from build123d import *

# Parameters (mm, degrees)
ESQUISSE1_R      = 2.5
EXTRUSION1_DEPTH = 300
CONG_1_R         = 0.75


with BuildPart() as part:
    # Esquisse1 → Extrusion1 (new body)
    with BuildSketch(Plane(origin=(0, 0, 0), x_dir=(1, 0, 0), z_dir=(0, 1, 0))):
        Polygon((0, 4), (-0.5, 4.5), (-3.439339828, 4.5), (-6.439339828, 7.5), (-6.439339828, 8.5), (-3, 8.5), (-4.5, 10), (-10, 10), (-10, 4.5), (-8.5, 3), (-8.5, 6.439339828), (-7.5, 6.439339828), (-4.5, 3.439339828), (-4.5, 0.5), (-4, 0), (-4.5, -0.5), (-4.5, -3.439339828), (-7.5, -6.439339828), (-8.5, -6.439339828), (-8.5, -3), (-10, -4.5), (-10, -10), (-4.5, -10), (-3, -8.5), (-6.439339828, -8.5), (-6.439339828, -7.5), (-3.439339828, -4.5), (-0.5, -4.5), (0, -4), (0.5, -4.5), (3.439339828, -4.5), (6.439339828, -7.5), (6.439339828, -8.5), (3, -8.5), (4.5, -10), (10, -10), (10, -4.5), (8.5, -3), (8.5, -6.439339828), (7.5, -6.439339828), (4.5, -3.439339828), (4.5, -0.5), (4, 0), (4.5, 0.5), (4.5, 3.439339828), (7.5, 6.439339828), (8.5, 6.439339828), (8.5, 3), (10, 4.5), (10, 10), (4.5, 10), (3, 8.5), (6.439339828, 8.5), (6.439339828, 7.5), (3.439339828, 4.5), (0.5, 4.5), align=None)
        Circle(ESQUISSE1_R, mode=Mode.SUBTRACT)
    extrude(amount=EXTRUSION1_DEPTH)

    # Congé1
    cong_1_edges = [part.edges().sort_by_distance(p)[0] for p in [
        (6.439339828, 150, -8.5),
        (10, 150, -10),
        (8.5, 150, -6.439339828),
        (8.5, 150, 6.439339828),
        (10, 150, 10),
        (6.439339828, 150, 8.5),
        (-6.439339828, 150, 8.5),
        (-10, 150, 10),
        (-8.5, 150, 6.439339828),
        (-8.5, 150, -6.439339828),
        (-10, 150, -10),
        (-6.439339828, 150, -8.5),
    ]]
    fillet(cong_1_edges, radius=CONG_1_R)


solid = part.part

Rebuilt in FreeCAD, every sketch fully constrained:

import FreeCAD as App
import Part
import Sketcher


def edges_at(feature, points):
    """Names of the edges that pass closest to the given points."""
    edges = feature.Shape.Edges
    near = lambda p: min(range(len(edges)), key=lambda i: edges[i].distToShape(Part.Vertex(*p))[0])
    return sorted({f"Edge{near(p) + 1}" for p in points})


def add_polygon(sketch, points):
    """Adds a closed chain of lines whose ends are joined by coincident constraints."""
    first, n = sketch.GeometryCount, len(points)
    for a, b in zip(points, points[1:] + points[:1]):
        sketch.addGeometry(Part.LineSegment(App.Vector(*a, 0), App.Vector(*b, 0)), False)
    for i in range(n):
        sketch.addConstraint(Sketcher.Constraint("Coincident", first + i, 2, first + (i + 1) % n, 1))

doc = App.newDocument("Part")
params = doc.addObject("Spreadsheet::Sheet", "Params")
for row, (alias, value) in enumerate([
    ("sketch1_diameter", "5 mm"),
    ("sketch1_width", "1 mm"),
    ("sketch1_width2", "5.5 mm"),
    ("pad1_length", "300 mm"),
    ("fillet_radius", "0.75 mm"),
], start=1):
    params.set(f"A{row}", alias)
    params.set(f"B{row}", "=" + value)
    params.setAlias(f"B{row}", alias)

body = doc.addObject("PartDesign::Body", "Body")

# Sketch on XZ plane
sketch1 = body.newObject("Sketcher::SketchObject", "Sketch")
sketch1.AttachmentSupport = (doc.getObject("XZ_Plane"), [""])
sketch1.MapMode = "FlatFace"
add_polygon(sketch1, [(0, -4), (-0.5, -4.5), (-3.43934, -4.5), (-6.43934, -7.5), (-6.43934, -8.5), (-3, -8.5), (-4.5, -10), (-10, -10), (-10, -4.5), (-8.5, -3), (-8.5, -6.43934), (-7.5, -6.43934), (-4.5, -3.43934), (-4.5, -0.5), (-4, 0), (-4.5, 0.5), (-4.5, 3.43934), (-7.5, 6.43934), (-8.5, 6.43934), (-8.5, 3), (-10, 4.5), (-10, 10), (-4.5, 10), (-3, 8.5), (-6.43934, 8.5), (-6.43934, 7.5), (-3.43934, 4.5), (-0.5, 4.5), (0, 4), (0.5, 4.5), (3.43934, 4.5), (6.43934, 7.5), (6.43934, 8.5), (3, 8.5), (4.5, 10), (10, 10), (10, 4.5), (8.5, 3), (8.5, 6.43934), (7.5, 6.43934), (4.5, 3.43934), (4.5, 0.5), (4, 0), (4.5, -0.5), (4.5, -3.43934), (7.5, -6.43934), (8.5, -6.43934), (8.5, -3), (10, -4.5), (10, -10), (4.5, -10), (3, -8.5), (6.43934, -8.5), (6.43934, -7.5), (3.43934, -4.5), (0.5, -4.5)])  # lines 0-55
sketch1.addGeometry(Part.Circle(App.Vector(0, 0, 0), App.Vector(0, 0, 1), 2.5), False)  # 56
sketch1.addConstraint(Sketcher.Constraint("Horizontal", 1))
sketch1.addConstraint(Sketcher.Constraint("Vertical", 3))
sketch1.addConstraint(Sketcher.Constraint("Horizontal", 4))
sketch1.addConstraint(Sketcher.Constraint("Horizontal", 6))
sketch1.addConstraint(Sketcher.Constraint("Vertical", 7))
sketch1.addConstraint(Sketcher.Constraint("Vertical", 9))
sketch1.addConstraint(Sketcher.Constraint("Horizontal", 10))
sketch1.addConstraint(Sketcher.Constraint("Vertical", 12))
sketch1.addConstraint(Sketcher.Constraint("Vertical", 15))
sketch1.addConstraint(Sketcher.Constraint("Horizontal", 17))
sketch1.addConstraint(Sketcher.Constraint("Vertical", 18))
sketch1.addConstraint(Sketcher.Constraint("Vertical", 20))
sketch1.addConstraint(Sketcher.Constraint("Horizontal", 21))
sketch1.addConstraint(Sketcher.Constraint("Horizontal", 23))
sketch1.addConstraint(Sketcher.Constraint("Vertical", 24))
sketch1.addConstraint(Sketcher.Constraint("Horizontal", 26))
sketch1.addConstraint(Sketcher.Constraint("Horizontal", 29))
sketch1.addConstraint(Sketcher.Constraint("Vertical", 31))
sketch1.addConstraint(Sketcher.Constraint("Horizontal", 32))
sketch1.addConstraint(Sketcher.Constraint("Horizontal", 34))
sketch1.addConstraint(Sketcher.Constraint("Vertical", 35))
sketch1.addConstraint(Sketcher.Constraint("Vertical", 37))
sketch1.addConstraint(Sketcher.Constraint("Horizontal", 38))
sketch1.addConstraint(Sketcher.Constraint("Vertical", 40))
sketch1.addConstraint(Sketcher.Constraint("Vertical", 43))
sketch1.addConstraint(Sketcher.Constraint("Horizontal", 45))
sketch1.addConstraint(Sketcher.Constraint("Vertical", 46))
sketch1.addConstraint(Sketcher.Constraint("Vertical", 48))
sketch1.addConstraint(Sketcher.Constraint("Horizontal", 49))
sketch1.addConstraint(Sketcher.Constraint("Horizontal", 51))
sketch1.addConstraint(Sketcher.Constraint("Vertical", 52))
sketch1.addConstraint(Sketcher.Constraint("Horizontal", 54))
sketch1.addConstraint(Sketcher.Constraint("Coincident", 56, 3, -1, 1))
sketch1.addConstraint(Sketcher.Constraint("Symmetric", 0, 2, 28, 2, -1, 1))
sketch1.addConstraint(Sketcher.Constraint("Symmetric", 2, 2, 30, 2, -1, 1))
sketch1.addConstraint(Sketcher.Constraint("Symmetric", 4, 2, 32, 2, -1, 1))
sketch1.addConstraint(Sketcher.Constraint("Symmetric", 5, 2, 33, 2, -1, 1))
sketch1.addConstraint(Sketcher.Constraint("Symmetric", 7, 2, 35, 2, -1, 1))
sketch1.addConstraint(Sketcher.Constraint("Symmetric", 8, 2, 36, 2, -1, 1))
sketch1.addConstraint(Sketcher.Constraint("Symmetric", 10, 2, 38, 2, -1, 1))
sketch1.addConstraint(Sketcher.Constraint("Symmetric", 11, 2, 39, 2, -1, 1))
sketch1.addConstraint(Sketcher.Constraint("Symmetric", 13, 2, 41, 2, -1, 1))
sketch1.addConstraint(Sketcher.Constraint("Symmetric", 14, 2, 42, 2, -1, 1))
sketch1.addConstraint(Sketcher.Constraint("Symmetric", 16, 2, 44, 2, -1, 1))
sketch1.addConstraint(Sketcher.Constraint("Symmetric", 18, 2, 46, 2, -1, 1))
sketch1.addConstraint(Sketcher.Constraint("Symmetric", 19, 2, 47, 2, -1, 1))
sketch1.addConstraint(Sketcher.Constraint("Symmetric", 21, 2, 49, 2, -1, 1))
sketch1.addConstraint(Sketcher.Constraint("Symmetric", 22, 2, 50, 2, -1, 1))
sketch1.addConstraint(Sketcher.Constraint("Symmetric", 24, 2, 52, 2, -1, 1))
sketch1.addConstraint(Sketcher.Constraint("Symmetric", 25, 2, 53, 2, -1, 1))
sketch1.addConstraint(Sketcher.Constraint("Symmetric", 27, 2, 55, 2, -1, 1))
sketch1.addConstraint(Sketcher.Constraint("Symmetric", 26, 2, 28, 2, -2))
sketch1.addConstraint(Sketcher.Constraint("Symmetric", 24, 2, 30, 2, -2))
sketch1.addConstraint(Sketcher.Constraint("Symmetric", 22, 2, 32, 2, -2))
sketch1.addConstraint(Sketcher.Constraint("Symmetric", 21, 2, 33, 2, -2))
sketch1.addConstraint(Sketcher.Constraint("Symmetric", 19, 2, 35, 2, -2))
sketch1.addConstraint(Sketcher.Constraint("Symmetric", 18, 2, 36, 2, -2))
sketch1.addConstraint(Sketcher.Constraint("Symmetric", 16, 2, 38, 2, -2))
sketch1.addConstraint(Sketcher.Constraint("Symmetric", 15, 2, 39, 2, -2))
sketch1.addConstraint(Sketcher.Constraint("PointOnObject", 13, 2, -1))
sketch1.addConstraint(Sketcher.Constraint("PointOnObject", 27, 2, -2))
sketch1.addConstraint(Sketcher.Constraint("Parallel", 0, 2))
sketch1.addConstraint(Sketcher.Constraint("Parallel", 2, 5))
sketch1.addConstraint(Sketcher.Constraint("Parallel", 5, 8))
sketch1.addConstraint(Sketcher.Constraint("Parallel", 8, 11))
sketch1.addConstraint(Sketcher.Constraint("Parallel", 11, 13))
sketch1.addConstraint(Sketcher.Constraint("Perpendicular", 13, 14))
sketch1.addConstraint(Sketcher.Constraint("Parallel", 14, 16))
sketch1.addConstraint(Sketcher.Constraint("Parallel", 22, 25))
sketch1.addConstraint(Sketcher.Constraint("Parallel", 28, 30))
sketch1.addConstraint(Sketcher.Constraint("Parallel", 39, 41))
sketch1.addConstraint(Sketcher.Constraint("Parallel", 42, 44))
sketch1.addConstraint(Sketcher.Constraint("Parallel", 53, 55))
sketch1.addConstraint(Sketcher.Constraint("Horizontal", 1, 2, 7, 2))
sketch1.addConstraint(Sketcher.Constraint("Vertical", 5, 2, 11, 2))
sketch1.addConstraint(Sketcher.Constraint("Equal", 45, 3))
sketch1.addConstraint(Sketcher.Constraint("Equal", 49, 7))
sketch1.addConstraint(Sketcher.Constraint("Equal", 51, 9))
sketch1.addConstraint(Sketcher.Constraint("Equal", 54, 12))
sketch1.addConstraint(Sketcher.Constraint("Equal", 5, 8))
sketch1.addConstraint(Sketcher.Constraint("Equal", 0, 13))
sketch1.addConstraint(Sketcher.Constraint("Diameter", 56, 5.0))
sketch1.addConstraint(Sketcher.Constraint("DistanceX", 10, 1, 10, 2, 1.0))
sketch1.addConstraint(Sketcher.Constraint("DistanceX", 6, 2, 6, 1, 5.5))
sketch1.addConstraint(Sketcher.Constraint("DistanceX", 4, 2, -1, 1, 3.0))
sketch1.addConstraint(Sketcher.Constraint("DistanceY", 5, 2, -1, 1, 10.0))
sketch1.addConstraint(Sketcher.Constraint("DistanceX", 13, 2, -1, 1, 4.0))
sketch1.addConstraint(Sketcher.Constraint("DistanceX", 1, 2, 1, 1, 2.93934))
sketch1.setExpression("Constraints[137]", "Params.sketch1_diameter")
sketch1.setExpression("Constraints[138]", "Params.sketch1_width")
sketch1.setExpression("Constraints[139]", "Params.sketch1_width2")
pad1 = body.newObject("PartDesign::Pad", "Pad")
pad1.Profile = sketch1
pad1.setExpression("Length", "Params.pad1_length")
pad1.Reversed = True
doc.recompute()

fillet = body.newObject("PartDesign::Fillet", "Fillet")
fillet.Base = (pad1, edges_at(pad1, [
    (6.439, 150, -8.5),
    (10, 150, -10),
    (8.5, 150, -6.439),
    (8.5, 150, 6.439),
    (10, 150, 10),
    (6.439, 150, 8.5),
    (-6.439, 150, 8.5),
    (-10, 150, 10),
    (-8.5, 150, 6.439),
    (-8.5, 150, -6.439),
    (-10, 150, -10),
    (-6.439, 150, -8.5),
]))
fillet.setExpression("Radius", "Params.fillet_radius")

doc.recompute()
